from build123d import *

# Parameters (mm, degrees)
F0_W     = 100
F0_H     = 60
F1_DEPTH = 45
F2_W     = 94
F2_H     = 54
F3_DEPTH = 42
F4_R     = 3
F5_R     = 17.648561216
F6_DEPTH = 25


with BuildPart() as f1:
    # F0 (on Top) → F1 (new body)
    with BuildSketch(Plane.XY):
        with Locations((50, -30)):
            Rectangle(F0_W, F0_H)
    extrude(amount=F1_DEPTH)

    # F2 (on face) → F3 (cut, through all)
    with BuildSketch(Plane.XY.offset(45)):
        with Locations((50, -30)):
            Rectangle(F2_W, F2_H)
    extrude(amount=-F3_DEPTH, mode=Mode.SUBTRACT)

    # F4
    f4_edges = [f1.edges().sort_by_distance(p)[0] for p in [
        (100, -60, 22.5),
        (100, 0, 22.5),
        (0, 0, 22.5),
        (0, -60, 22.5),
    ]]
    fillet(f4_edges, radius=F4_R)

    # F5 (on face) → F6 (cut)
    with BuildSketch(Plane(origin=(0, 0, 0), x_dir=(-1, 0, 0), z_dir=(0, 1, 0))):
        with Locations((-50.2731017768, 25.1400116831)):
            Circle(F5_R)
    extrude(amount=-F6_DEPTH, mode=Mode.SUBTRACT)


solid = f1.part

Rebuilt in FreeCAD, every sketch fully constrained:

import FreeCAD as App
import Part
import Sketcher

V = App.Vector
Q = App.Units.Quantity


def edges_at(feature, points):
    """Names of the edges that pass closest to the given points."""
    edges = feature.Shape.Edges
    near = lambda p: min(range(len(edges)), key=lambda i: edges[i].distToShape(Part.Vertex(*p))[0])
    return sorted({f"Edge{near(p) + 1}" for p in points})

doc = App.newDocument("Part")
body = doc.addObject("PartDesign::Body", "Body")

# Sketch on XY plane
sketch1 = doc.addObject("Sketcher::SketchObject", "Sketch")
body.addObject(sketch1)
sketch1.AttachmentSupport = (doc.XY_Plane, [""])
sketch1.MapMode = "FlatFace"
sketch1.addGeometry(Part.LineSegment(V(0, 0, 0), V(0, -60, 0)), False)
sketch1.addGeometry(Part.LineSegment(V(0, -60, 0), V(100, -60, 0)), False)
sketch1.addGeometry(Part.LineSegment(V(100, -60, 0), V(100, 0, 0)), False)
sketch1.addGeometry(Part.LineSegment(V(100, 0, 0), V(0, 0, 0)), False)
sketch1.addConstraint(Sketcher.Constraint("Coincident", 0, 2, 1, 1))
sketch1.addConstraint(Sketcher.Constraint("Coincident", 1, 2, 2, 1))
sketch1.addConstraint(Sketcher.Constraint("Coincident", 2, 2, 3, 1))
sketch1.addConstraint(Sketcher.Constraint("Coincident", 3, 2, 0, 1))
sketch1.addConstraint(Sketcher.Constraint("Vertical", 0))
sketch1.addConstraint(Sketcher.Constraint("Horizontal", 1))
sketch1.addConstraint(Sketcher.Constraint("Vertical", 2))
sketch1.addConstraint(Sketcher.Constraint("Horizontal", 3))
sketch1.addConstraint(Sketcher.Constraint("Coincident", 3, 2, -1, 1))
sketch1.addConstraint(Sketcher.Constraint("DistanceX", 1, 1, 1, 2, Q("100 mm")))
sketch1.addConstraint(Sketcher.Constraint("DistanceY", 0, 2, 0, 1, Q("60 mm")))
pad1 = doc.addObject("PartDesign::Pad", "Pad")
body.addObject(pad1)
pad1.Profile = sketch1
pad1.Length = 45

# Sketch on XY plane
sketch2 = doc.addObject("Sketcher::SketchObject", "Sketch001")
body.addObject(sketch2)
sketch2.AttachmentSupport = (doc.XY_Plane, [""])
sketch2.MapMode = "FlatFace"
sketch2.AttachmentOffset = App.Placement(V(0, 0, 45), App.Rotation())
sketch2.addGeometry(Part.LineSegment(V(3, -3, 0), V(3, -57, 0)), False)
sketch2.addGeometry(Part.LineSegment(V(3, -57, 0), V(97, -57, 0)), False)
sketch2.addGeometry(Part.LineSegment(V(97, -57, 0), V(97, -3, 0)), False)
sketch2.addGeometry(Part.LineSegment(V(97, -3, 0), V(3, -3, 0)), False)
sketch2.addConstraint(Sketcher.Constraint("Coincident", 0, 2, 1, 1))
sketch2.addConstraint(Sketcher.Constraint("Coincident", 1, 2, 2, 1))
sketch2.addConstraint(Sketcher.Constraint("Coincident", 2, 2, 3, 1))
sketch2.addConstraint(Sketcher.Constraint("Coincident", 3, 2, 0, 1))
sketch2.addConstraint(Sketcher.Constraint("Vertical", 0))
sketch2.addConstraint(Sketcher.Constraint("Horizontal", 1))
sketch2.addConstraint(Sketcher.Constraint("Vertical", 2))
sketch2.addConstraint(Sketcher.Constraint("Horizontal", 3))
sketch2.addConstraint(Sketcher.Constraint("DistanceX", 1, 1, 1, 2, Q("94 mm")))
sketch2.addConstraint(Sketcher.Constraint("DistanceY", 0, 2, 0, 1, Q("54 mm")))
sketch2.addConstraint(Sketcher.Constraint("DistanceX", -1, 1, 0, 2, Q("3 mm")))
sketch2.addConstraint(Sketcher.Constraint("DistanceY", 0, 2, -1, 1, Q("57 mm")))
pocket1 = doc.addObject("PartDesign::Pocket", "Pocket")
body.addObject(pocket1)
pocket1.Profile = sketch2
pocket1.Length = 42
doc.recompute()

fillet = doc.addObject("PartDesign::Fillet", "Fillet")
body.addObject(fillet)
fillet.Base = (pocket1, edges_at(pocket1, [
    (100, -60, 22.5),
    (100, 0, 22.5),
    (0, 0, 22.5),
    (0, -60, 22.5),
]))
fillet.Radius = 3

# Sketch on XZ plane
sketch3 = doc.addObject("Sketcher::SketchObject", "Sketch002")
body.addObject(sketch3)
sketch3.AttachmentSupport = (doc.XZ_Plane, [""])
sketch3.MapMode = "FlatFace"
sketch3.addGeometry(Part.Circle(V(50, 25, 0), V(0, 0, 1), 18), False)
sketch3.addConstraint(Sketcher.Constraint("Diameter", 0, Q("35.297122 mm")))
sketch3.addConstraint(Sketcher.Constraint("DistanceX", -1, 1, 0, 3, Q("50.273102 mm")))
sketch3.addConstraint(Sketcher.Constraint("DistanceY", -1, 1, 0, 3, Q("25.140012 mm")))
pocket2 = doc.addObject("PartDesign::Pocket", "Pocket001")
body.addObject(pocket2)
pocket2.Profile = sketch3
pocket2.Length = 25
pocket2.Reversed = True

doc.recompute()
